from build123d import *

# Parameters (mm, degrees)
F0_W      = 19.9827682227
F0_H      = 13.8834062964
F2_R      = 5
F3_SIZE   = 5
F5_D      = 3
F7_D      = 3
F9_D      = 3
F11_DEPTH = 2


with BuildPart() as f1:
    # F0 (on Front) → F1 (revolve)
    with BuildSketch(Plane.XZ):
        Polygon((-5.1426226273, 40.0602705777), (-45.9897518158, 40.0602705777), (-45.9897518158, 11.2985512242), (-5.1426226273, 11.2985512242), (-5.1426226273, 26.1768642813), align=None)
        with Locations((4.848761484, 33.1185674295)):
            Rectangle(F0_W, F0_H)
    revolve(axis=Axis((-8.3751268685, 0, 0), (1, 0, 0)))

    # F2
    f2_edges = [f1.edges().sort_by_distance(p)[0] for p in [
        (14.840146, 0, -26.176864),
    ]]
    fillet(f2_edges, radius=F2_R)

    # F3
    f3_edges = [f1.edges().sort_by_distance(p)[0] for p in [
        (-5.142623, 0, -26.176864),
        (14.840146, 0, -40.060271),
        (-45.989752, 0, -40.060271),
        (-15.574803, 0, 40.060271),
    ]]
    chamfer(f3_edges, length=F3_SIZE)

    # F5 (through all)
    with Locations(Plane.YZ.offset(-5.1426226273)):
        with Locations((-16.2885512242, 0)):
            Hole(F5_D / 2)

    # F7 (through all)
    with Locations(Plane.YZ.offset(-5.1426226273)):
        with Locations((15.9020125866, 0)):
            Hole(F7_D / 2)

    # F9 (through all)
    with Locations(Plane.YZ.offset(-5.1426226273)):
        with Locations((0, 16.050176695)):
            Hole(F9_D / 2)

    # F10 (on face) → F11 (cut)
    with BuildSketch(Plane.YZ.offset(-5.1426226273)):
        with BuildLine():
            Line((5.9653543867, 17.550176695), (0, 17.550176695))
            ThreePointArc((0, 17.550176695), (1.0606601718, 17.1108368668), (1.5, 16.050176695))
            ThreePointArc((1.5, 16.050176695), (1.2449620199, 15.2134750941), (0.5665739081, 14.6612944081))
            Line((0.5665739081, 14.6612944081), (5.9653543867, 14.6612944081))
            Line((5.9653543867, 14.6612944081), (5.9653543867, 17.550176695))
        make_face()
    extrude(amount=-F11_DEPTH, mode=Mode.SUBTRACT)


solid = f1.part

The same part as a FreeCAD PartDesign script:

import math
import FreeCAD as App
import Part
import Sketcher
Q = App.Units.Quantity


def edges_at(feature, points):
    """Names of the edges that pass closest to the given points."""
    edges = feature.Shape.Edges
    near = lambda p: min(range(len(edges)), key=lambda i: edges[i].distToShape(Part.Vertex(*p))[0])
    return sorted({f"Edge{near(p) + 1}" for p in points})


def add_polygon(sketch, points):
    """Adds a closed chain of lines whose ends are joined by coincident constraints."""
    first, n = sketch.GeometryCount, len(points)
    for a, b in zip(points, points[1:] + points[:1]):
        sketch.addGeometry(Part.LineSegment(App.Vector(*a, 0), App.Vector(*b, 0)), False)
    for i in range(n):
        sketch.addConstraint(Sketcher.Constraint("Coincident", first + i, 2, first + (i + 1) % n, 1))

doc = App.newDocument("Part")
params = doc.addObject("Spreadsheet::Sheet", "Params")
for row, (alias, value) in enumerate([
    ("revolution_angle", "360 deg"),
    ("fillet_radius", "5 mm"),
    ("chamfer_size", "5 mm"),
    ("sketch2_diameter", "3 mm"),
    ("hole_diameter", "3 mm"),
    ("sketch3_diameter", "3 mm"),
    ("hole2_diameter", "3 mm"),
    ("sketch4_diameter", "3 mm"),
    ("hole3_diameter", "3 mm"),
    ("sketch5_radius", "1.5 mm"),
    ("pocket1_length", "2 mm"),
], start=1):
    params.set(f"A{row}", alias)
    params.set(f"B{row}", "=" + value)
    params.setAlias(f"B{row}", alias)

body = doc.addObject("PartDesign::Body", "Body")

# Sketch on XZ plane
sketch1 = body.newObject("Sketcher::SketchObject", "Sketch")
sketch1.AttachmentSupport = (doc.getObject("XZ_Plane"), [""])
sketch1.MapMode = "FlatFace"
add_polygon(sketch1, [(-46, 40), (-46, 11), (-5, 11), (-5, 26), (15, 26), (15, 40)])  # lines 0-5
sketch1.addConstraint([
    Sketcher.Constraint("Vertical", 0),
    Sketcher.Constraint("Horizontal", 1),
    Sketcher.Constraint("Vertical", 2),
    Sketcher.Constraint("Horizontal", 3),
    Sketcher.Constraint("Vertical", 4),
    Sketcher.Constraint("Horizontal", 5),
    Sketcher.Constraint("DistanceX", 1, 1, 1, 2, Q("40.847129 mm")),
    Sketcher.Constraint("DistanceX", 3, 1, 3, 2, Q("19.982768 mm")),
    Sketcher.Constraint("DistanceY", 0, 2, 0, 1, Q("28.761719 mm")),
    Sketcher.Constraint("DistanceY", 2, 1, 2, 2, Q("14.878313 mm")),
    Sketcher.Constraint("DistanceX", 0, 2, -1, 1, Q("45.989752 mm")),
    Sketcher.Constraint("DistanceY", -1, 1, 0, 2, Q("11.298551 mm")),
])
revolution = body.newObject("PartDesign::Revolution", "Revolution")
revolution.Profile = sketch1
revolution.ReferenceAxis = (sketch1, ["H_Axis"])
revolution.setExpression("Angle", "Params.revolution_angle")
doc.recompute()

fillet = body.newObject("PartDesign::Fillet", "Fillet")
fillet.Base = (revolution, edges_at(revolution, [(14.84, 0, -26.177)]))
fillet.setExpression("Radius", "Params.fillet_radius")
doc.recompute()

chamfer = body.newObject("PartDesign::Chamfer", "Chamfer")
chamfer.Base = (fillet, edges_at(fillet, [
    (-5.143, 0, -26.177),
    (14.84, 0, -40.06),
    (-45.99, 0, -40.06),
    (-15.575, 0, 40.06),
]))
chamfer.setExpression("Size", "Params.chamfer_size")

# Sketch on YZ plane
sketch2 = body.newObject("Sketcher::SketchObject", "Sketch001")
sketch2.AttachmentSupport = (doc.getObject("YZ_Plane"), [""])
sketch2.MapMode = "FlatFace"
sketch2.AttachmentOffset = App.Placement(App.Vector(0, 0, -5.142623), App.Rotation())
sketch2.addGeometry(Part.Circle(App.Vector(-16.3, 0, 0), App.Vector(0, 0, 1), 1.5), False)
sketch2.addConstraint([
    Sketcher.Constraint("PointOnObject", 0, 3, -1),
    Sketcher.Constraint("Diameter", 0, Q("3 mm")),
    Sketcher.Constraint("DistanceX", 0, 3, -1, 1, Q("16.288551 mm")),
])
sketch2.setExpression("Constraints[1]", "Params.sketch2_diameter")
doc.recompute()
hole = body.newObject("PartDesign::Hole", "Hole")
hole.Profile = sketch2
hole.ThreadType = "None"
hole.setExpression("Diameter", "Params.hole_diameter")
hole.DepthType = "ThroughAll"

# Sketch on YZ plane
sketch3 = body.newObject("Sketcher::SketchObject", "Sketch002")
sketch3.AttachmentSupport = (doc.getObject("YZ_Plane"), [""])
sketch3.MapMode = "FlatFace"
sketch3.AttachmentOffset = App.Placement(App.Vector(0, 0, -5.142623), App.Rotation())
sketch3.addGeometry(Part.Circle(App.Vector(15.9, 0, 0), App.Vector(0, 0, 1), 1.5), False)
sketch3.addConstraint([
    Sketcher.Constraint("PointOnObject", 0, 3, -1),
    Sketcher.Constraint("Diameter", 0, Q("3 mm")),
    Sketcher.Constraint("DistanceX", -1, 1, 0, 3, Q("15.902013 mm")),
])
sketch3.setExpression("Constraints[1]", "Params.sketch3_diameter")
doc.recompute()
hole2 = body.newObject("PartDesign::Hole", "Hole001")
hole2.Profile = sketch3
hole2.ThreadType = "None"
hole2.setExpression("Diameter", "Params.hole2_diameter")
hole2.DepthType = "ThroughAll"

# Sketch on YZ plane
sketch4 = body.newObject("Sketcher::SketchObject", "Sketch003")
sketch4.AttachmentSupport = (doc.getObject("YZ_Plane"), [""])
sketch4.MapMode = "FlatFace"
sketch4.AttachmentOffset = App.Placement(App.Vector(0, 0, -5.142623), App.Rotation())
sketch4.addGeometry(Part.Circle(App.Vector(0, 16.1, 0), App.Vector(0, 0, 1), 1.5), False)
sketch4.addConstraint([
    Sketcher.Constraint("PointOnObject", 0, 3, -2),
    Sketcher.Constraint("Diameter", 0, Q("3 mm")),
    Sketcher.Constraint("DistanceY", -1, 1, 0, 3, Q("16.050177 mm")),
])
sketch4.setExpression("Constraints[1]", "Params.sketch4_diameter")
doc.recompute()
hole3 = body.newObject("PartDesign::Hole", "Hole002")
hole3.Profile = sketch4
hole3.ThreadType = "None"
hole3.setExpression("Diameter", "Params.hole3_diameter")
hole3.DepthType = "ThroughAll"

# Sketch on YZ plane
sketch5 = body.newObject("Sketcher::SketchObject", "Sketch004")
sketch5.AttachmentSupport = (doc.getObject("YZ_Plane"), [""])
sketch5.MapMode = "FlatFace"
sketch5.AttachmentOffset = App.Placement(App.Vector(0, 0, -5.142623), App.Rotation())
sketch5.addGeometry([
    Part.LineSegment(App.Vector(6, 17.6, 0), App.Vector(0, 17.6, 0)),  # 0
    Part.ArcOfCircle(Part.Circle(App.Vector(0, 16.1, 0), App.Vector(0, 0, 1), 1.5), math.radians(0), math.radians(90)),  # 1
    Part.ArcOfCircle(Part.Circle(App.Vector(0, 16.1, 0), App.Vector(0, 0, 1), 1.5), math.radians(-68), math.radians(0)),  # 2
    Part.LineSegment(App.Vector(0.6, 14.7, 0), App.Vector(6, 14.7, 0)),  # 3
    Part.LineSegment(App.Vector(6, 14.7, 0), App.Vector(6, 17.6, 0)),  # 4
], False)
sketch5.addConstraint([
    Sketcher.Constraint("Tangent", 0, 2, 1, 2),
    Sketcher.Constraint("Tangent", 1, 1, 2, 2),
    Sketcher.Constraint("Coincident", 2, 1, 3, 1),
    Sketcher.Constraint("Coincident", 3, 2, 4, 1),
    Sketcher.Constraint("Coincident", 4, 2, 0, 1),
    Sketcher.Constraint("Horizontal", 0),
    Sketcher.Constraint("Horizontal", 3),
    Sketcher.Constraint("Vertical", 4),
    Sketcher.Constraint("Equal", 1, 2),
    Sketcher.Constraint("PointOnObject", 1, 3, -2),
    Sketcher.Constraint("Horizontal", 2, 3, 1, 1),
    Sketcher.Constraint("Radius", 1, Q("1.5 mm")),
    Sketcher.Constraint("DistanceX", 3, 1, 3, 2, Q("5.39878 mm")),
    Sketcher.Constraint("DistanceX", 0, 2, 0, 1, Q("5.965354 mm")),
    Sketcher.Constraint("DistanceY", -1, 1, 1, 3, Q("16.050177 mm")),
])
sketch5.setExpression("Constraints[11]", "Params.sketch5_radius")
pocket1 = body.newObject("PartDesign::Pocket", "Pocket")
pocket1.Profile = sketch5
pocket1.setExpression("Length", "Params.pocket1_length")

doc.recompute()
